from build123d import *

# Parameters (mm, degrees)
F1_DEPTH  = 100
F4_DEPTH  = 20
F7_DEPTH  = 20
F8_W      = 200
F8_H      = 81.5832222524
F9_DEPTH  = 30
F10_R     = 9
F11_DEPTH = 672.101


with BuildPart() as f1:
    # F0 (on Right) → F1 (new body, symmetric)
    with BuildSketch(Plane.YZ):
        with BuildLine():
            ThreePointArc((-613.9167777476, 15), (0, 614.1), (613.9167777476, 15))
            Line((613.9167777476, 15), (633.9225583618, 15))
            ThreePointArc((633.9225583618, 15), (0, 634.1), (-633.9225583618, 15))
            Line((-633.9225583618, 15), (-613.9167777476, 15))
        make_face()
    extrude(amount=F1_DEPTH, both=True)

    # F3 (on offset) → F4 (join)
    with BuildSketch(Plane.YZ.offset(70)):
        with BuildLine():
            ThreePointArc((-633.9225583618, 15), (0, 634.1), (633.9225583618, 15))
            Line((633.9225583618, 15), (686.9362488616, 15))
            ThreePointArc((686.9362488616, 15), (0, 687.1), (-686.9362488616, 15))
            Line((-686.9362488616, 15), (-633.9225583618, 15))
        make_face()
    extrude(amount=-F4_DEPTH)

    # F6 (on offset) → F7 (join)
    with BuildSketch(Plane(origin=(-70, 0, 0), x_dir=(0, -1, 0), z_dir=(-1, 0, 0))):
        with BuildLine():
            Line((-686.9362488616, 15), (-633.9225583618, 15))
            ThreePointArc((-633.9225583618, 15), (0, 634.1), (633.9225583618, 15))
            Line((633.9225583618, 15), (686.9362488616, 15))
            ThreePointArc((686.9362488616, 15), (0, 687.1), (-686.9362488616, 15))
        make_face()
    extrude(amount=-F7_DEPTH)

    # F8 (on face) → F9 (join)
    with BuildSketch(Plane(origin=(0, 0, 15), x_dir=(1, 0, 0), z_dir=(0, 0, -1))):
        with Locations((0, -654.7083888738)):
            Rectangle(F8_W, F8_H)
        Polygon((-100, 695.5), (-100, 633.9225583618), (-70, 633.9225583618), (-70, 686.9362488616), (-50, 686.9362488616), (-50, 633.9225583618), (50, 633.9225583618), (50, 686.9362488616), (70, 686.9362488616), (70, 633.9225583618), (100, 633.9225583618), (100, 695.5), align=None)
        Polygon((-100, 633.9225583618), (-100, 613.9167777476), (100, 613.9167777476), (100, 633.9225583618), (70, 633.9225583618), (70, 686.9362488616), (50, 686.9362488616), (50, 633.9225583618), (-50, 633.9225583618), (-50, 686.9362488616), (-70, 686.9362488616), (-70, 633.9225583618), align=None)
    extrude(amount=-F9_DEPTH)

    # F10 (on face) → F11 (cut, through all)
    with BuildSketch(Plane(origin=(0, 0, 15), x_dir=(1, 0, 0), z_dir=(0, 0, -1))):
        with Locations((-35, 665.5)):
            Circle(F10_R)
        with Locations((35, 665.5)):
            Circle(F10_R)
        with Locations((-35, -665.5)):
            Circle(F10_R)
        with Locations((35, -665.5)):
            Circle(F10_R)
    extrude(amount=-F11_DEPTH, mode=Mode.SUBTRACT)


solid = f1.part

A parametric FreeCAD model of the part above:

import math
import FreeCAD as App
import Part
import Sketcher
Q = App.Units.Quantity

doc = App.newDocument("Part")
body = doc.addObject("PartDesign::Body", "Body")

sketch1 = doc.addObject("Sketcher::SketchObject", "Sketch")
body.addObject(sketch1)
sketch1.AttachmentSupport = (doc.YZ_Plane, [""])
sketch1.MapMode = "FlatFace"
sketch1.addGeometry(Part.ArcOfCircle(Part.Circle(App.Vector(0, 0, 0), App.Vector(0, 0, 1), 614), math.radians(1), math.radians(179)), False)
sketch1.addGeometry(Part.LineSegment(App.Vector(614, 15, 0), App.Vector(634, 15, 0)), False)
sketch1.addGeometry(Part.ArcOfCircle(Part.Circle(App.Vector(0, 0, 0), App.Vector(0, 0, 1), 634), math.radians(1), math.radians(179)), False)
sketch1.addGeometry(Part.LineSegment(App.Vector(-634, 15, 0), App.Vector(-614, 15, 0)), False)
sketch1.addConstraint(Sketcher.Constraint("Coincident", 0, 1, 1, 1))
sketch1.addConstraint(Sketcher.Constraint("Coincident", 1, 2, 2, 1))
sketch1.addConstraint(Sketcher.Constraint("Coincident", 2, 2, 3, 1))
sketch1.addConstraint(Sketcher.Constraint("Coincident", 3, 2, 0, 2))
sketch1.addConstraint(Sketcher.Constraint("Horizontal", 1))
sketch1.addConstraint(Sketcher.Constraint("Horizontal", 3))
sketch1.addConstraint(Sketcher.Constraint("Coincident", 0, 3, -1, 1))
sketch1.addConstraint(Sketcher.Constraint("Coincident", 2, 3, -1, 1))
sketch1.addConstraint(Sketcher.Constraint("Radius", 0, Q("614.1 mm")))
sketch1.addConstraint(Sketcher.Constraint("Radius", 2, Q("634.1 mm")))
sketch1.addConstraint(Sketcher.Constraint("DistanceY", -1, 1, 1, 2, Q("15 mm")))
sketch1.addConstraint(Sketcher.Constraint("DistanceY", -1, 1, 3, 2, Q("15 mm")))
pad1 = doc.addObject("PartDesign::Pad", "Pad")
body.addObject(pad1)
pad1.Profile = sketch1
pad1.Length = 200
pad1.Midplane = True

sketch2 = doc.addObject("Sketcher::SketchObject", "Sketch001")
body.addObject(sketch2)
sketch2.AttachmentSupport = (doc.YZ_Plane, [""])
sketch2.MapMode = "FlatFace"
sketch2.AttachmentOffset = App.Placement(App.Vector(0, 0, 70), App.Rotation())
sketch2.addGeometry(Part.ArcOfCircle(Part.Circle(App.Vector(0, 0, 0), App.Vector(0, 0, 1), 634), math.radians(1), math.radians(179)), False)
sketch2.addGeometry(Part.LineSegment(App.Vector(634, 15, 0), App.Vector(687, 15, 0)), False)
sketch2.addGeometry(Part.ArcOfCircle(Part.Circle(App.Vector(0, 0, 0), App.Vector(0, 0, 1), 687), math.radians(1), math.radians(179)), False)
sketch2.addGeometry(Part.LineSegment(App.Vector(-687, 15, 0), App.Vector(-634, 15, 0)), False)
sketch2.addConstraint(Sketcher.Constraint("Coincident", 0, 1, 1, 1))
sketch2.addConstraint(Sketcher.Constraint("Coincident", 1, 2, 2, 1))
sketch2.addConstraint(Sketcher.Constraint("Coincident", 2, 2, 3, 1))
sketch2.addConstraint(Sketcher.Constraint("Coincident", 3, 2, 0, 2))
sketch2.addConstraint(Sketcher.Constraint("Horizontal", 1))
sketch2.addConstraint(Sketcher.Constraint("Horizontal", 3))
sketch2.addConstraint(Sketcher.Constraint("Coincident", 0, 3, -1, 1))
sketch2.addConstraint(Sketcher.Constraint("Coincident", 2, 3, -1, 1))
sketch2.addConstraint(Sketcher.Constraint("Radius", 0, Q("634.1 mm")))
sketch2.addConstraint(Sketcher.Constraint("Radius", 2, Q("687.1 mm")))
sketch2.addConstraint(Sketcher.Constraint("DistanceY", -1, 1, 1, 2, Q("15 mm")))
sketch2.addConstraint(Sketcher.Constraint("DistanceY", -1, 1, 3, 2, Q("15 mm")))
pad2 = doc.addObject("PartDesign::Pad", "Pad001")
body.addObject(pad2)
pad2.Profile = sketch2
pad2.Length = 20
pad2.Reversed = True

sketch3 = doc.addObject("Sketcher::SketchObject", "Sketch002")
body.addObject(sketch3)
sketch3.AttachmentSupport = (doc.YZ_Plane, [""])
sketch3.MapMode = "FlatFace"
sketch3.AttachmentOffset = App.Placement(App.Vector(0, 0, -70), App.Rotation())
sketch3.addGeometry(Part.LineSegment(App.Vector(687, 15, 0), App.Vector(634, 15, 0)), False)
sketch3.addGeometry(Part.ArcOfCircle(Part.Circle(App.Vector(0, 0, 0), App.Vector(0, 0, 1), 634), math.radians(1), math.radians(179)), False)
sketch3.addGeometry(Part.LineSegment(App.Vector(-634, 15, 0), App.Vector(-687, 15, 0)), False)
sketch3.addGeometry(Part.ArcOfCircle(Part.Circle(App.Vector(0, 0, 0), App.Vector(0, 0, 1), 687), math.radians(1), math.radians(179)), False)
sketch3.addConstraint(Sketcher.Constraint("Coincident", 0, 2, 1, 1))
sketch3.addConstraint(Sketcher.Constraint("Coincident", 1, 2, 2, 1))
sketch3.addConstraint(Sketcher.Constraint("Coincident", 2, 2, 3, 2))
sketch3.addConstraint(Sketcher.Constraint("Coincident", 3, 1, 0, 1))
sketch3.addConstraint(Sketcher.Constraint("Horizontal", 0))
sketch3.addConstraint(Sketcher.Constraint("Horizontal", 2))
sketch3.addConstraint(Sketcher.Constraint("Coincident", 1, 3, -1, 1))
sketch3.addConstraint(Sketcher.Constraint("Coincident", 3, 3, -1, 1))
sketch3.addConstraint(Sketcher.Constraint("Radius", 1, Q("634.1 mm")))
sketch3.addConstraint(Sketcher.Constraint("Radius", 3, Q("687.1 mm")))
sketch3.addConstraint(Sketcher.Constraint("DistanceY", -1, 1, 0, 2, Q("15 mm")))
sketch3.addConstraint(Sketcher.Constraint("DistanceY", -1, 1, 2, 2, Q("15 mm")))
pad3 = doc.addObject("PartDesign::Pad", "Pad002")
body.addObject(pad3)
pad3.Profile = sketch3
pad3.Length = 20

sketch4 = doc.addObject("Sketcher::SketchObject", "Sketch003")
body.addObject(sketch4)
sketch4.AttachmentSupport = (doc.XY_Plane, [""])
sketch4.MapMode = "FlatFace"
sketch4.AttachmentOffset = App.Placement(App.Vector(0, 0, 15), App.Rotation())
sketch4.addGeometry(Part.LineSegment(App.Vector(-100, 614, 0), App.Vector(-100, 696, 0)), False)
sketch4.addGeometry(Part.LineSegment(App.Vector(-100, 696, 0), App.Vector(100, 696, 0)), False)
sketch4.addGeometry(Part.LineSegment(App.Vector(100, 696, 0), App.Vector(100, 614, 0)), False)
sketch4.addGeometry(Part.LineSegment(App.Vector(100, 614, 0), App.Vector(-100, 614, 0)), False)
sketch4.addGeometry(Part.LineSegment(App.Vector(-100, -696, 0), App.Vector(-100, -614, 0)), False)
sketch4.addGeometry(Part.LineSegment(App.Vector(-100, -614, 0), App.Vector(100, -614, 0)), False)
sketch4.addGeometry(Part.LineSegment(App.Vector(100, -614, 0), App.Vector(100, -696, 0)), False)
sketch4.addGeometry(Part.LineSegment(App.Vector(100, -696, 0), App.Vector(-100, -696, 0)), False)
sketch4.addConstraint(Sketcher.Constraint("Coincident", 0, 2, 1, 1))
sketch4.addConstraint(Sketcher.Constraint("Coincident", 1, 2, 2, 1))
sketch4.addConstraint(Sketcher.Constraint("Coincident", 2, 2, 3, 1))
sketch4.addConstraint(Sketcher.Constraint("Coincident", 3, 2, 0, 1))
sketch4.addConstraint(Sketcher.Constraint("Coincident", 4, 2, 5, 1))
sketch4.addConstraint(Sketcher.Constraint("Coincident", 5, 2, 6, 1))
sketch4.addConstraint(Sketcher.Constraint("Coincident", 6, 2, 7, 1))
sketch4.addConstraint(Sketcher.Constraint("Coincident", 7, 2, 4, 1))
sketch4.addConstraint(Sketcher.Constraint("Vertical", 0))
sketch4.addConstraint(Sketcher.Constraint("Horizontal", 1))
sketch4.addConstraint(Sketcher.Constraint("Vertical", 2))
sketch4.addConstraint(Sketcher.Constraint("Horizontal", 3))
sketch4.addConstraint(Sketcher.Constraint("Vertical", 4))
sketch4.addConstraint(Sketcher.Constraint("Horizontal", 5))
sketch4.addConstraint(Sketcher.Constraint("Vertical", 6))
sketch4.addConstraint(Sketcher.Constraint("Horizontal", 7))
sketch4.addConstraint(Sketcher.Constraint("Symmetric", 2, 2, 4, 2, -1, 1))
sketch4.addConstraint(Sketcher.Constraint("Symmetric", 0, 2, 6, 2, -1, 1))
sketch4.addConstraint(Sketcher.Constraint("Vertical", 3, 2, 4, 2))
sketch4.addConstraint(Sketcher.Constraint("DistanceX", 1, 1, 1, 2, Q("200 mm")))
sketch4.addConstraint(Sketcher.Constraint("DistanceY", 6, 2, 1, 2, Q("1391 mm")))
sketch4.addConstraint(Sketcher.Constraint("DistanceY", 0, 1, 0, 2, Q("81.583222 mm")))
pad4 = doc.addObject("PartDesign::Pad", "Pad003")
body.addObject(pad4)
pad4.Profile = sketch4
pad4.Length = 30

sketch5 = doc.addObject("Sketcher::SketchObject", "Sketch004")
body.addObject(sketch5)
sketch5.AttachmentSupport = (doc.XY_Plane, [""])
sketch5.MapMode = "FlatFace"
sketch5.AttachmentOffset = App.Placement(App.Vector(0, 0, 15), App.Rotation())
sketch5.addGeometry(Part.Circle(App.Vector(-35, -666, 0), App.Vector(0, 0, 1), 9), False)
sketch5.addGeometry(Part.Circle(App.Vector(35, -666, 0), App.Vector(0, 0, 1), 9), False)
sketch5.addGeometry(Part.Circle(App.Vector(-35, 666, 0), App.Vector(0, 0, 1), 9), False)
sketch5.addGeometry(Part.Circle(App.Vector(35, 666, 0), App.Vector(0, 0, 1), 9), False)
sketch5.addConstraint(Sketcher.Constraint("Equal", 0, 1))
sketch5.addConstraint(Sketcher.Constraint("Equal", 1, 2))
sketch5.addConstraint(Sketcher.Constraint("Equal", 2, 3))
sketch5.addConstraint(Sketcher.Constraint("Symmetric", 1, 3, 2, 3, -1, 1))
sketch5.addConstraint(Sketcher.Constraint("Symmetric", 0, 3, 3, 3, -1, 1))
sketch5.addConstraint(Sketcher.Constraint("Symmetric", 0, 3, 1, 3, -2))
sketch5.addConstraint(Sketcher.Constraint("Diameter", 0, Q("18 mm")))
sketch5.addConstraint(Sketcher.Constraint("DistanceX", 0, 3, -1, 1, Q("35 mm")))
sketch5.addConstraint(Sketcher.Constraint("DistanceY", 0, 3, 2, 3, Q("1331 mm")))
pocket1 = doc.addObject("PartDesign::Pocket", "Pocket")
body.addObject(pocket1)
pocket1.Profile = sketch5
pocket1.Type = "ThroughAll"
pocket1.Reversed = True

doc.recompute()
